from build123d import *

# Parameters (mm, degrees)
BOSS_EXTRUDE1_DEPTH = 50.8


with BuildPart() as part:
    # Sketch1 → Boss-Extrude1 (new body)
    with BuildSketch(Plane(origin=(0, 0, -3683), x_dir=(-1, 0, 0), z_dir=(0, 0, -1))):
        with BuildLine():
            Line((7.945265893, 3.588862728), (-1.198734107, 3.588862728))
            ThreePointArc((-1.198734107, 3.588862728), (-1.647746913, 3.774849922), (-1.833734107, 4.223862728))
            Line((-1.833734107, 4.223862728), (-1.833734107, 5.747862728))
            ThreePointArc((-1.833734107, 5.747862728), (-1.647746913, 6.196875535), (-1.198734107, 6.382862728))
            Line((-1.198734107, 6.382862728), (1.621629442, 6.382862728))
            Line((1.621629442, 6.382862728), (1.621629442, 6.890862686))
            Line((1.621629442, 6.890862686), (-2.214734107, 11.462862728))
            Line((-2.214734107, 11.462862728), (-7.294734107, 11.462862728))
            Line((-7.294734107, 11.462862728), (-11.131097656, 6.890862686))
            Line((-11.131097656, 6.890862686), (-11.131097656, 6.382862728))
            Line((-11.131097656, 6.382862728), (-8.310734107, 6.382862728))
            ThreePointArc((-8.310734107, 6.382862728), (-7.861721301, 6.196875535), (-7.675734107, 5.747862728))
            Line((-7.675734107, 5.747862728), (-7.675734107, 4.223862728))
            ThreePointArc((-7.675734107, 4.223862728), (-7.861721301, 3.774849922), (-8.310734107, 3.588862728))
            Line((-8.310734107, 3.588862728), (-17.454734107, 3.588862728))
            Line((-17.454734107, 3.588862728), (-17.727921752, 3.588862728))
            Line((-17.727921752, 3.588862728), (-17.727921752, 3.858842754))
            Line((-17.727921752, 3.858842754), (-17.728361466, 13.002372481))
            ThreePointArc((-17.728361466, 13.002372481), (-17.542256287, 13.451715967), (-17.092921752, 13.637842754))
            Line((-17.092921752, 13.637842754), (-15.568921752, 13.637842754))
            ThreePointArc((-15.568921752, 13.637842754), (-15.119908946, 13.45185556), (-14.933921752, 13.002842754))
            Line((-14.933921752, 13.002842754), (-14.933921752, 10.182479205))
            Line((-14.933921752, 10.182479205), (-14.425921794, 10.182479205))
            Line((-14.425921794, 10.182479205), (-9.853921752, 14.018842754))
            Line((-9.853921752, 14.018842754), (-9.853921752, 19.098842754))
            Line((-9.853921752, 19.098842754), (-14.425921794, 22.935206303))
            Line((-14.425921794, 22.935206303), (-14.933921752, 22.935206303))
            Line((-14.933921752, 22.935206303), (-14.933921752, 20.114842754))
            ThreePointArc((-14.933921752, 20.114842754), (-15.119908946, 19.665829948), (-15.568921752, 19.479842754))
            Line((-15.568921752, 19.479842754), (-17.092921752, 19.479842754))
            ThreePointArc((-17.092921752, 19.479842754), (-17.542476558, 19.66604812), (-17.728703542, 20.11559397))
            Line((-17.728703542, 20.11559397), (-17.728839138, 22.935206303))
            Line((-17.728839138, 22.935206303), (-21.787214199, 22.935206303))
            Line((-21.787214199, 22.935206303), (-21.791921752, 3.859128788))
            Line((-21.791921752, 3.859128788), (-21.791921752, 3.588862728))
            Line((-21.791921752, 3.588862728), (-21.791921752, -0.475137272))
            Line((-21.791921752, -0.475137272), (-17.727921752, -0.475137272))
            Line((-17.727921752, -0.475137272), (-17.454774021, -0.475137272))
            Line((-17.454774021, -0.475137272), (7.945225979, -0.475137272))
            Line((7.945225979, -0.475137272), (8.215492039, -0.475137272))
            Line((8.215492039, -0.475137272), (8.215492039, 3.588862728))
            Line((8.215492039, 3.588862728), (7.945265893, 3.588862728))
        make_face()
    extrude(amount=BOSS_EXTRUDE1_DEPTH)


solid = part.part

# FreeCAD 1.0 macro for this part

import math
import FreeCAD as App
import Part
import Sketcher
from FreeCAD import Vector
Q = App.Units.Quantity

doc = App.newDocument("Part")
body = doc.addObject("PartDesign::Body", "Body")

# Sketch on XY plane
sketch1 = body.newObject("Sketcher::SketchObject", "Sketch")
sketch1.AttachmentSupport = (doc.getObject("XY_Plane"), [""])
sketch1.MapMode = "FlatFace"
sketch1.AttachmentOffset = App.Placement(Vector(0, 0, -145 * 25.4), App.Rotation())
sketch1.addGeometry([
    Part.ArcOfCircle(Part.Circle(Vector(1.2, 4.22, 0), Vector(0, 0, 1), 0.64), math.radians(-90), math.radians(0)),  # 0
    Part.LineSegment(Vector(1.83, 4.22, 0), Vector(1.83, 5.75, 0)),  # 1
    Part.ArcOfCircle(Part.Circle(Vector(1.2, 5.75, 0), Vector(0, 0, 1), 0.63), math.radians(0), math.radians(90)),  # 2
    Part.LineSegment(Vector(1.2, 6.38, 0), Vector(-1.62, 6.38, 0)),  # 3
    Part.LineSegment(Vector(-1.62, 6.38, 0), Vector(-1.62, 6.89, 0)),  # 4
    Part.LineSegment(Vector(-1.62, 6.89, 0), Vector(2.21, 11.46, 0)),  # 5
    Part.LineSegment(Vector(2.21, 11.46, 0), Vector(7.29, 11.46, 0)),  # 6
    Part.LineSegment(Vector(7.29, 11.46, 0), Vector(11.13, 6.89, 0)),  # 7
    Part.LineSegment(Vector(11.13, 6.89, 0), Vector(11.13, 6.38, 0)),  # 8
    Part.LineSegment(Vector(11.13, 6.38, 0), Vector(8.31, 6.38, 0)),  # 9
    Part.ArcOfCircle(Part.Circle(Vector(8.31, 5.75, 0), Vector(0, 0, 1), 0.63), math.radians(90), math.radians(180)),  # 10
    Part.LineSegment(Vector(7.68, 5.75, 0), Vector(7.68, 4.22, 0)),  # 11
    Part.ArcOfCircle(Part.Circle(Vector(8.31, 4.22, 0), Vector(0, 0, 1), 0.64), math.radians(180), math.radians(270)),  # 12
    Part.LineSegment(Vector(8.31, 3.59, 0), Vector(17.73, 3.59, 0)),  # 13
    Part.LineSegment(Vector(17.73, 3.59, 0), Vector(17.73, 3.86, 0)),  # 14
    Part.LineSegment(Vector(17.73, 3.86, 0), Vector(17.73, 13, 0)),  # 15
    Part.ArcOfCircle(Part.Circle(Vector(17.09, 13, 0), Vector(0, 0, 1), 0.64), math.radians(0), math.radians(90)),  # 16
    Part.LineSegment(Vector(17.09, 13.64, 0), Vector(15.57, 13.64, 0)),  # 17
    Part.ArcOfCircle(Part.Circle(Vector(15.57, 13, 0), Vector(0, 0, 1), 0.64), math.radians(90), math.radians(180)),  # 18
    Part.LineSegment(Vector(14.93, 13, 0), Vector(14.93, 10.18, 0)),  # 19
    Part.LineSegment(Vector(14.93, 10.18, 0), Vector(14.43, 10.18, 0)),  # 20
    Part.LineSegment(Vector(14.43, 10.18, 0), Vector(9.85, 14.02, 0)),  # 21
    Part.LineSegment(Vector(9.85, 14.02, 0), Vector(9.85, 19.1, 0)),  # 22
    Part.LineSegment(Vector(9.85, 19.1, 0), Vector(14.43, 22.94, 0)),  # 23
    Part.LineSegment(Vector(14.43, 22.94, 0), Vector(14.93, 22.94, 0)),  # 24
    Part.LineSegment(Vector(14.93, 22.94, 0), Vector(14.93, 20.11, 0)),  # 25
    Part.ArcOfCircle(Part.Circle(Vector(15.57, 20.11, 0), Vector(0, 0, 1), 0.64), math.radians(180), math.radians(270)),  # 26
    Part.LineSegment(Vector(15.57, 19.48, 0), Vector(17.09, 19.48, 0)),  # 27
    Part.ArcOfCircle(Part.Circle(Vector(17.09, 20.12, 0), Vector(0, 0, 1), 0.64), math.radians(-90), math.radians(0)),  # 28
    Part.LineSegment(Vector(17.73, 20.12, 0), Vector(17.73, 22.94, 0)),  # 29
    Part.LineSegment(Vector(17.73, 22.94, 0), Vector(21.79, 22.94, 0)),  # 30
    Part.LineSegment(Vector(21.79, 22.94, 0), Vector(21.79, 3.86, 0)),  # 31
    Part.LineSegment(Vector(21.79, 3.86, 0), Vector(21.79, -0.48, 0)),  # 32
    Part.LineSegment(Vector(21.79, -0.48, 0), Vector(-8.22, -0.48, 0)),  # 33
    Part.LineSegment(Vector(-8.22, -0.48, 0), Vector(-8.22, 3.59, 0)),  # 34
    Part.LineSegment(Vector(-8.22, 3.59, 0), Vector(1.2, 3.59, 0)),  # 35
], False)
sketch1.addConstraint([
    Sketcher.Constraint("Tangent", 0, 2, 1, 1),
    Sketcher.Constraint("Tangent", 1, 2, 2, 1),
    Sketcher.Constraint("Tangent", 2, 2, 3, 1),
    Sketcher.Constraint("Coincident", 3, 2, 4, 1),
    Sketcher.Constraint("Coincident", 4, 2, 5, 1),
    Sketcher.Constraint("Coincident", 5, 2, 6, 1),
    Sketcher.Constraint("Coincident", 6, 2, 7, 1),
    Sketcher.Constraint("Coincident", 7, 2, 8, 1),
    Sketcher.Constraint("Coincident", 8, 2, 9, 1),
    Sketcher.Constraint("Tangent", 9, 2, 10, 1),
    Sketcher.Constraint("Tangent", 10, 2, 11, 1),
    Sketcher.Constraint("Tangent", 11, 2, 12, 1),
    Sketcher.Constraint("Tangent", 12, 2, 13, 1),
    Sketcher.Constraint("Coincident", 13, 2, 14, 1),
    Sketcher.Constraint("Coincident", 14, 2, 15, 1),
    Sketcher.Constraint("Tangent", 15, 2, 16, 1),
    Sketcher.Constraint("Tangent", 16, 2, 17, 1),
    Sketcher.Constraint("Tangent", 17, 2, 18, 1),
    Sketcher.Constraint("Tangent", 18, 2, 19, 1),
    Sketcher.Constraint("Coincident", 19, 2, 20, 1),
    Sketcher.Constraint("Coincident", 20, 2, 21, 1),
    Sketcher.Constraint("Coincident", 21, 2, 22, 1),
    Sketcher.Constraint("Coincident", 22, 2, 23, 1),
    Sketcher.Constraint("Coincident", 23, 2, 24, 1),
    Sketcher.Constraint("Coincident", 24, 2, 25, 1),
    Sketcher.Constraint("Tangent", 25, 2, 26, 1),
    Sketcher.Constraint("Tangent", 26, 2, 27, 1),
    Sketcher.Constraint("Tangent", 27, 2, 28, 1),
    Sketcher.Constraint("Tangent", 28, 2, 29, 1),
    Sketcher.Constraint("Coincident", 29, 2, 30, 1),
    Sketcher.Constraint("Coincident", 30, 2, 31, 1),
    Sketcher.Constraint("Coincident", 31, 2, 32, 1),
    Sketcher.Constraint("Coincident", 32, 2, 33, 1),
    Sketcher.Constraint("Coincident", 33, 2, 34, 1),
    Sketcher.Constraint("Coincident", 34, 2, 35, 1),
    Sketcher.Constraint("Tangent", 35, 2, 0, 1),
    Sketcher.Constraint("Vertical", 1),
    Sketcher.Constraint("Horizontal", 3),
    Sketcher.Constraint("Vertical", 4),
    Sketcher.Constraint("Horizontal", 6),
    Sketcher.Constraint("Vertical", 8),
    Sketcher.Constraint("Horizontal", 9),
    Sketcher.Constraint("Vertical", 11),
    Sketcher.Constraint("Horizontal", 13),
    Sketcher.Constraint("Vertical", 14),
    Sketcher.Constraint("Horizontal", 17),
    Sketcher.Constraint("Vertical", 19),
    Sketcher.Constraint("Horizontal", 20),
    Sketcher.Constraint("Vertical", 22),
    Sketcher.Constraint("Horizontal", 24),
    Sketcher.Constraint("Vertical", 25),
    Sketcher.Constraint("Horizontal", 27),
    Sketcher.Constraint("Horizontal", 30),
    Sketcher.Constraint("Vertical", 32),
    Sketcher.Constraint("Horizontal", 33),
    Sketcher.Constraint("Vertical", 34),
    Sketcher.Constraint("Horizontal", 35),
    Sketcher.Constraint("Equal", 0, 2),
    Sketcher.Constraint("Equal", 2, 10),
    Sketcher.Constraint("Equal", 10, 12),
    Sketcher.Constraint("Equal", 12, 18),
    Sketcher.Constraint("Equal", 18, 26),
    Sketcher.Constraint("Perpendicular", 5, 21),
    Sketcher.Constraint("Perpendicular", 7, 23),
    Sketcher.Constraint("Parallel", 15, 29),
    Sketcher.Constraint("Horizontal", 2, 3, 10, 3),
    Sketcher.Constraint("Horizontal", 0, 3, 12, 3),
    Sketcher.Constraint("Horizontal", 4, 2, 7, 2),
    Sketcher.Constraint("Horizontal", 24, 2, 29, 2),
    Sketcher.Constraint("Vertical", 18, 3, 26, 3),
    Sketcher.Constraint("Vertical", 16, 3, 28, 3),
    Sketcher.Constraint("Vertical", 20, 2, 23, 2),
    Sketcher.Constraint("Equal", 3, 9),
    Sketcher.Constraint("Equal", 27, 1),
    Sketcher.Constraint("Equal", 24, 4),
    Sketcher.Constraint("Equal", 9, 19),
    Sketcher.Constraint("Equal", 6, 22),
    Sketcher.Constraint("Equal", 19, 25),
    Sketcher.Constraint("Equal", 5, 7),
    Sketcher.Constraint("Equal", 7, 21),
    Sketcher.Constraint("DistanceX", 6, 1, 6, 2, Q("0.2 in")),
    Sketcher.Constraint("Angle", 5, Q("50 deg")),
    Sketcher.Constraint("Radius", 0, Q("0.025 in")),
    Sketcher.Constraint("DistanceX", 17, 2, 17, 1, Q("0.06 in")),
    Sketcher.Constraint("DistanceX", 20, 2, 20, 1, Q("0.02 in")),
    Sketcher.Constraint("DistanceY", 34, 1, 34, 2, Q("0.16 in")),
    Sketcher.Constraint("DistanceY", 2, 2, 5, 2, Q("0.2 in")),
    Sketcher.Constraint("DistanceX", 2, 3, 10, 3, Q("0.28 in")),
    Sketcher.Constraint("DistanceY", 14, 2, 18, 3, Q("0.36 in")),
    Sketcher.Constraint("DistanceX", 14, 2, 31, 2, Q("0.16 in")),
    Sketcher.Constraint("DistanceX", 19, 2, 31, 2, Q("0.27 in")),
    Sketcher.Constraint("Radius", 16, 0.63544),
    Sketcher.Constraint("Radius", 28, 0.635782),
    Sketcher.Constraint("DistanceY", 14, 1, 14, 2, 0.26998),
    Sketcher.Constraint("Distance", 31, 19.076078),
    Sketcher.Constraint("DistanceX", 13, 1, 13, 2, 9.417188),
    Sketcher.Constraint("DistanceX", 30, 1, 30, 2, 4.058375),
    Sketcher.Constraint("DistanceX", 33, 2, 33, 1, 30.007414),
    Sketcher.Constraint("DistanceX", -1, 1, 16, 3, 17.092922),
    Sketcher.Constraint("DistanceY", -1, 1, 19, 2, 10.182479),
])
pad1 = body.newObject("PartDesign::Pad", "Pad")
pad1.Profile = sketch1
pad1.Length = Q("2 in")
pad1.Reversed = True

doc.recompute()
